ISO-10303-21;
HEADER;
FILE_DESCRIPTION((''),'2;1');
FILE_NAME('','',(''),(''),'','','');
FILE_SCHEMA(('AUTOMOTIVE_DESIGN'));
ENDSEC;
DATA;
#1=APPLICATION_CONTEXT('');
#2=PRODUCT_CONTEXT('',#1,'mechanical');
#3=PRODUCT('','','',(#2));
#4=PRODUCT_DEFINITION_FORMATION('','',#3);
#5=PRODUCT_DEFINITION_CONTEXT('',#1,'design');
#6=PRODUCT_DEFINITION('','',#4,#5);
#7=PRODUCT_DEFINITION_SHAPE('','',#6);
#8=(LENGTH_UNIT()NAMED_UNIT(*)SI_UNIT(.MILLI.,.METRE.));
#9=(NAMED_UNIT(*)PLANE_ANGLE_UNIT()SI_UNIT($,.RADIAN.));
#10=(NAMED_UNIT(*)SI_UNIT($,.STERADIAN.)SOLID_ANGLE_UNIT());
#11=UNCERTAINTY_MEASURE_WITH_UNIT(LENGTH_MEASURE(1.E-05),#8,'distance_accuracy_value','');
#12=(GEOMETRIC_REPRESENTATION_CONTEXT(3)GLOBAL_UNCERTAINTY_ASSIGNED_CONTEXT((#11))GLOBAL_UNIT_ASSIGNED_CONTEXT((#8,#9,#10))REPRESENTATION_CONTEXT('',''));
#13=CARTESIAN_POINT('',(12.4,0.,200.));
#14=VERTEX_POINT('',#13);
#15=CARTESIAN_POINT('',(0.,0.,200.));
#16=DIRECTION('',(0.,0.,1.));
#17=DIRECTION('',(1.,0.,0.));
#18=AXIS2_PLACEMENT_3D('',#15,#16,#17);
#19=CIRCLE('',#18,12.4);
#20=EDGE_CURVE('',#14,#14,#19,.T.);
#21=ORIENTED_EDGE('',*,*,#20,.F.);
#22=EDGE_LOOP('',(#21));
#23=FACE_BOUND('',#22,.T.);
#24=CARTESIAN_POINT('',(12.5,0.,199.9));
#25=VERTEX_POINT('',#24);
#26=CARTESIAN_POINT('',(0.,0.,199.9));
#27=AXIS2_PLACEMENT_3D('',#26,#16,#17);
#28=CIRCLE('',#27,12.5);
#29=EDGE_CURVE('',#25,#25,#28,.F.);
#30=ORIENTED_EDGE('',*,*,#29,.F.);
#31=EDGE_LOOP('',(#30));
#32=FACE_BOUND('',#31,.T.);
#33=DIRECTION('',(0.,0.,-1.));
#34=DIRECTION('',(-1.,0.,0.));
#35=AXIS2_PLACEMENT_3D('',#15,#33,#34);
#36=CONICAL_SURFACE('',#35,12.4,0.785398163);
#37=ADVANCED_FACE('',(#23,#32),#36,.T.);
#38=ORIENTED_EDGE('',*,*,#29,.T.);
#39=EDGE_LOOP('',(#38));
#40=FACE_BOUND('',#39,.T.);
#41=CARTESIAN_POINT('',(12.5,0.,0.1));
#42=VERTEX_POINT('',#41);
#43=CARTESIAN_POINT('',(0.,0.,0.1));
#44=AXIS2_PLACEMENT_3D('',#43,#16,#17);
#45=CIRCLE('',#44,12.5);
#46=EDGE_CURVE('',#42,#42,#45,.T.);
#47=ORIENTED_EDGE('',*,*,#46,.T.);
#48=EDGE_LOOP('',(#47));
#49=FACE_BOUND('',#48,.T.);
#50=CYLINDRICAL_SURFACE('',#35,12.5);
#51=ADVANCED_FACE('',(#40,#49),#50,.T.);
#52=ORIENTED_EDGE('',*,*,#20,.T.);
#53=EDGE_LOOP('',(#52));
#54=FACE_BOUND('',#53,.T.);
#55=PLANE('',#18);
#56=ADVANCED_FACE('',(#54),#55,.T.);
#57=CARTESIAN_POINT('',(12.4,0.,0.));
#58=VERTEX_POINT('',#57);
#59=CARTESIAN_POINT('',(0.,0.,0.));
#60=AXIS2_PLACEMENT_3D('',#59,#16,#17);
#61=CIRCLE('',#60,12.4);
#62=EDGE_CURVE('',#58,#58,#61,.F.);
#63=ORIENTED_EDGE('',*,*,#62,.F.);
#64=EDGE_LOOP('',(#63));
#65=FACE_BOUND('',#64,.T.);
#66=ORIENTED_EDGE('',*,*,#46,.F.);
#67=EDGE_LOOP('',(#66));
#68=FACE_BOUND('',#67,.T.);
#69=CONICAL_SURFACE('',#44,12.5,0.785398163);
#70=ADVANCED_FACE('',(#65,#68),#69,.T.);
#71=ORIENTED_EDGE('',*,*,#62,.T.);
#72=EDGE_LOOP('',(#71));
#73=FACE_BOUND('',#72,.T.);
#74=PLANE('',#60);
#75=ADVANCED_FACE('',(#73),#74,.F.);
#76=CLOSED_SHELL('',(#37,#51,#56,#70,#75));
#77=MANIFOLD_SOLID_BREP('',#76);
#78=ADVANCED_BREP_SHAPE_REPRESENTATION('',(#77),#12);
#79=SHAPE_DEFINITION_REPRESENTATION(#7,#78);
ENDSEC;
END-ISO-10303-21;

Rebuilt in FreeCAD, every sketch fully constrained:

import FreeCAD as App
import Part
import Sketcher
from FreeCAD import Vector
Q = App.Units.Quantity


def edges_at(feature, points):
    """Names of the edges that pass closest to the given points."""
    edges = feature.Shape.Edges
    near = lambda p: min(range(len(edges)), key=lambda i: edges[i].distToShape(Part.Vertex(*p))[0])
    return sorted({f"Edge{near(p) + 1}" for p in points})

doc = App.newDocument("Part")
body = doc.addObject("PartDesign::Body", "Body")

sketch1 = body.newObject("Sketcher::SketchObject", "Sketch")
sketch1.AttachmentSupport = (doc.getObject("XY_Plane"), [""])
sketch1.MapMode = "FlatFace"
sketch1.addGeometry(Part.Circle(Vector(0, 0, 0), Vector(0, 0, 1), 12), False)
sketch1.addConstraint(Sketcher.Constraint("Coincident", 0, 3, -1, 1))
sketch1.addConstraint(Sketcher.Constraint("Diameter", 0, Q("25 mm")))
pad1 = body.newObject("PartDesign::Pad", "Pad")
pad1.Profile = sketch1
pad1.Length = 200
doc.recompute()

chamfer = body.newObject("PartDesign::Chamfer", "Chamfer")
chamfer.Base = (pad1, edges_at(pad1, [(-12.5, 0, 0), (-12.5, 0, 200)]))
chamfer.Size = 0.1

doc.recompute()
